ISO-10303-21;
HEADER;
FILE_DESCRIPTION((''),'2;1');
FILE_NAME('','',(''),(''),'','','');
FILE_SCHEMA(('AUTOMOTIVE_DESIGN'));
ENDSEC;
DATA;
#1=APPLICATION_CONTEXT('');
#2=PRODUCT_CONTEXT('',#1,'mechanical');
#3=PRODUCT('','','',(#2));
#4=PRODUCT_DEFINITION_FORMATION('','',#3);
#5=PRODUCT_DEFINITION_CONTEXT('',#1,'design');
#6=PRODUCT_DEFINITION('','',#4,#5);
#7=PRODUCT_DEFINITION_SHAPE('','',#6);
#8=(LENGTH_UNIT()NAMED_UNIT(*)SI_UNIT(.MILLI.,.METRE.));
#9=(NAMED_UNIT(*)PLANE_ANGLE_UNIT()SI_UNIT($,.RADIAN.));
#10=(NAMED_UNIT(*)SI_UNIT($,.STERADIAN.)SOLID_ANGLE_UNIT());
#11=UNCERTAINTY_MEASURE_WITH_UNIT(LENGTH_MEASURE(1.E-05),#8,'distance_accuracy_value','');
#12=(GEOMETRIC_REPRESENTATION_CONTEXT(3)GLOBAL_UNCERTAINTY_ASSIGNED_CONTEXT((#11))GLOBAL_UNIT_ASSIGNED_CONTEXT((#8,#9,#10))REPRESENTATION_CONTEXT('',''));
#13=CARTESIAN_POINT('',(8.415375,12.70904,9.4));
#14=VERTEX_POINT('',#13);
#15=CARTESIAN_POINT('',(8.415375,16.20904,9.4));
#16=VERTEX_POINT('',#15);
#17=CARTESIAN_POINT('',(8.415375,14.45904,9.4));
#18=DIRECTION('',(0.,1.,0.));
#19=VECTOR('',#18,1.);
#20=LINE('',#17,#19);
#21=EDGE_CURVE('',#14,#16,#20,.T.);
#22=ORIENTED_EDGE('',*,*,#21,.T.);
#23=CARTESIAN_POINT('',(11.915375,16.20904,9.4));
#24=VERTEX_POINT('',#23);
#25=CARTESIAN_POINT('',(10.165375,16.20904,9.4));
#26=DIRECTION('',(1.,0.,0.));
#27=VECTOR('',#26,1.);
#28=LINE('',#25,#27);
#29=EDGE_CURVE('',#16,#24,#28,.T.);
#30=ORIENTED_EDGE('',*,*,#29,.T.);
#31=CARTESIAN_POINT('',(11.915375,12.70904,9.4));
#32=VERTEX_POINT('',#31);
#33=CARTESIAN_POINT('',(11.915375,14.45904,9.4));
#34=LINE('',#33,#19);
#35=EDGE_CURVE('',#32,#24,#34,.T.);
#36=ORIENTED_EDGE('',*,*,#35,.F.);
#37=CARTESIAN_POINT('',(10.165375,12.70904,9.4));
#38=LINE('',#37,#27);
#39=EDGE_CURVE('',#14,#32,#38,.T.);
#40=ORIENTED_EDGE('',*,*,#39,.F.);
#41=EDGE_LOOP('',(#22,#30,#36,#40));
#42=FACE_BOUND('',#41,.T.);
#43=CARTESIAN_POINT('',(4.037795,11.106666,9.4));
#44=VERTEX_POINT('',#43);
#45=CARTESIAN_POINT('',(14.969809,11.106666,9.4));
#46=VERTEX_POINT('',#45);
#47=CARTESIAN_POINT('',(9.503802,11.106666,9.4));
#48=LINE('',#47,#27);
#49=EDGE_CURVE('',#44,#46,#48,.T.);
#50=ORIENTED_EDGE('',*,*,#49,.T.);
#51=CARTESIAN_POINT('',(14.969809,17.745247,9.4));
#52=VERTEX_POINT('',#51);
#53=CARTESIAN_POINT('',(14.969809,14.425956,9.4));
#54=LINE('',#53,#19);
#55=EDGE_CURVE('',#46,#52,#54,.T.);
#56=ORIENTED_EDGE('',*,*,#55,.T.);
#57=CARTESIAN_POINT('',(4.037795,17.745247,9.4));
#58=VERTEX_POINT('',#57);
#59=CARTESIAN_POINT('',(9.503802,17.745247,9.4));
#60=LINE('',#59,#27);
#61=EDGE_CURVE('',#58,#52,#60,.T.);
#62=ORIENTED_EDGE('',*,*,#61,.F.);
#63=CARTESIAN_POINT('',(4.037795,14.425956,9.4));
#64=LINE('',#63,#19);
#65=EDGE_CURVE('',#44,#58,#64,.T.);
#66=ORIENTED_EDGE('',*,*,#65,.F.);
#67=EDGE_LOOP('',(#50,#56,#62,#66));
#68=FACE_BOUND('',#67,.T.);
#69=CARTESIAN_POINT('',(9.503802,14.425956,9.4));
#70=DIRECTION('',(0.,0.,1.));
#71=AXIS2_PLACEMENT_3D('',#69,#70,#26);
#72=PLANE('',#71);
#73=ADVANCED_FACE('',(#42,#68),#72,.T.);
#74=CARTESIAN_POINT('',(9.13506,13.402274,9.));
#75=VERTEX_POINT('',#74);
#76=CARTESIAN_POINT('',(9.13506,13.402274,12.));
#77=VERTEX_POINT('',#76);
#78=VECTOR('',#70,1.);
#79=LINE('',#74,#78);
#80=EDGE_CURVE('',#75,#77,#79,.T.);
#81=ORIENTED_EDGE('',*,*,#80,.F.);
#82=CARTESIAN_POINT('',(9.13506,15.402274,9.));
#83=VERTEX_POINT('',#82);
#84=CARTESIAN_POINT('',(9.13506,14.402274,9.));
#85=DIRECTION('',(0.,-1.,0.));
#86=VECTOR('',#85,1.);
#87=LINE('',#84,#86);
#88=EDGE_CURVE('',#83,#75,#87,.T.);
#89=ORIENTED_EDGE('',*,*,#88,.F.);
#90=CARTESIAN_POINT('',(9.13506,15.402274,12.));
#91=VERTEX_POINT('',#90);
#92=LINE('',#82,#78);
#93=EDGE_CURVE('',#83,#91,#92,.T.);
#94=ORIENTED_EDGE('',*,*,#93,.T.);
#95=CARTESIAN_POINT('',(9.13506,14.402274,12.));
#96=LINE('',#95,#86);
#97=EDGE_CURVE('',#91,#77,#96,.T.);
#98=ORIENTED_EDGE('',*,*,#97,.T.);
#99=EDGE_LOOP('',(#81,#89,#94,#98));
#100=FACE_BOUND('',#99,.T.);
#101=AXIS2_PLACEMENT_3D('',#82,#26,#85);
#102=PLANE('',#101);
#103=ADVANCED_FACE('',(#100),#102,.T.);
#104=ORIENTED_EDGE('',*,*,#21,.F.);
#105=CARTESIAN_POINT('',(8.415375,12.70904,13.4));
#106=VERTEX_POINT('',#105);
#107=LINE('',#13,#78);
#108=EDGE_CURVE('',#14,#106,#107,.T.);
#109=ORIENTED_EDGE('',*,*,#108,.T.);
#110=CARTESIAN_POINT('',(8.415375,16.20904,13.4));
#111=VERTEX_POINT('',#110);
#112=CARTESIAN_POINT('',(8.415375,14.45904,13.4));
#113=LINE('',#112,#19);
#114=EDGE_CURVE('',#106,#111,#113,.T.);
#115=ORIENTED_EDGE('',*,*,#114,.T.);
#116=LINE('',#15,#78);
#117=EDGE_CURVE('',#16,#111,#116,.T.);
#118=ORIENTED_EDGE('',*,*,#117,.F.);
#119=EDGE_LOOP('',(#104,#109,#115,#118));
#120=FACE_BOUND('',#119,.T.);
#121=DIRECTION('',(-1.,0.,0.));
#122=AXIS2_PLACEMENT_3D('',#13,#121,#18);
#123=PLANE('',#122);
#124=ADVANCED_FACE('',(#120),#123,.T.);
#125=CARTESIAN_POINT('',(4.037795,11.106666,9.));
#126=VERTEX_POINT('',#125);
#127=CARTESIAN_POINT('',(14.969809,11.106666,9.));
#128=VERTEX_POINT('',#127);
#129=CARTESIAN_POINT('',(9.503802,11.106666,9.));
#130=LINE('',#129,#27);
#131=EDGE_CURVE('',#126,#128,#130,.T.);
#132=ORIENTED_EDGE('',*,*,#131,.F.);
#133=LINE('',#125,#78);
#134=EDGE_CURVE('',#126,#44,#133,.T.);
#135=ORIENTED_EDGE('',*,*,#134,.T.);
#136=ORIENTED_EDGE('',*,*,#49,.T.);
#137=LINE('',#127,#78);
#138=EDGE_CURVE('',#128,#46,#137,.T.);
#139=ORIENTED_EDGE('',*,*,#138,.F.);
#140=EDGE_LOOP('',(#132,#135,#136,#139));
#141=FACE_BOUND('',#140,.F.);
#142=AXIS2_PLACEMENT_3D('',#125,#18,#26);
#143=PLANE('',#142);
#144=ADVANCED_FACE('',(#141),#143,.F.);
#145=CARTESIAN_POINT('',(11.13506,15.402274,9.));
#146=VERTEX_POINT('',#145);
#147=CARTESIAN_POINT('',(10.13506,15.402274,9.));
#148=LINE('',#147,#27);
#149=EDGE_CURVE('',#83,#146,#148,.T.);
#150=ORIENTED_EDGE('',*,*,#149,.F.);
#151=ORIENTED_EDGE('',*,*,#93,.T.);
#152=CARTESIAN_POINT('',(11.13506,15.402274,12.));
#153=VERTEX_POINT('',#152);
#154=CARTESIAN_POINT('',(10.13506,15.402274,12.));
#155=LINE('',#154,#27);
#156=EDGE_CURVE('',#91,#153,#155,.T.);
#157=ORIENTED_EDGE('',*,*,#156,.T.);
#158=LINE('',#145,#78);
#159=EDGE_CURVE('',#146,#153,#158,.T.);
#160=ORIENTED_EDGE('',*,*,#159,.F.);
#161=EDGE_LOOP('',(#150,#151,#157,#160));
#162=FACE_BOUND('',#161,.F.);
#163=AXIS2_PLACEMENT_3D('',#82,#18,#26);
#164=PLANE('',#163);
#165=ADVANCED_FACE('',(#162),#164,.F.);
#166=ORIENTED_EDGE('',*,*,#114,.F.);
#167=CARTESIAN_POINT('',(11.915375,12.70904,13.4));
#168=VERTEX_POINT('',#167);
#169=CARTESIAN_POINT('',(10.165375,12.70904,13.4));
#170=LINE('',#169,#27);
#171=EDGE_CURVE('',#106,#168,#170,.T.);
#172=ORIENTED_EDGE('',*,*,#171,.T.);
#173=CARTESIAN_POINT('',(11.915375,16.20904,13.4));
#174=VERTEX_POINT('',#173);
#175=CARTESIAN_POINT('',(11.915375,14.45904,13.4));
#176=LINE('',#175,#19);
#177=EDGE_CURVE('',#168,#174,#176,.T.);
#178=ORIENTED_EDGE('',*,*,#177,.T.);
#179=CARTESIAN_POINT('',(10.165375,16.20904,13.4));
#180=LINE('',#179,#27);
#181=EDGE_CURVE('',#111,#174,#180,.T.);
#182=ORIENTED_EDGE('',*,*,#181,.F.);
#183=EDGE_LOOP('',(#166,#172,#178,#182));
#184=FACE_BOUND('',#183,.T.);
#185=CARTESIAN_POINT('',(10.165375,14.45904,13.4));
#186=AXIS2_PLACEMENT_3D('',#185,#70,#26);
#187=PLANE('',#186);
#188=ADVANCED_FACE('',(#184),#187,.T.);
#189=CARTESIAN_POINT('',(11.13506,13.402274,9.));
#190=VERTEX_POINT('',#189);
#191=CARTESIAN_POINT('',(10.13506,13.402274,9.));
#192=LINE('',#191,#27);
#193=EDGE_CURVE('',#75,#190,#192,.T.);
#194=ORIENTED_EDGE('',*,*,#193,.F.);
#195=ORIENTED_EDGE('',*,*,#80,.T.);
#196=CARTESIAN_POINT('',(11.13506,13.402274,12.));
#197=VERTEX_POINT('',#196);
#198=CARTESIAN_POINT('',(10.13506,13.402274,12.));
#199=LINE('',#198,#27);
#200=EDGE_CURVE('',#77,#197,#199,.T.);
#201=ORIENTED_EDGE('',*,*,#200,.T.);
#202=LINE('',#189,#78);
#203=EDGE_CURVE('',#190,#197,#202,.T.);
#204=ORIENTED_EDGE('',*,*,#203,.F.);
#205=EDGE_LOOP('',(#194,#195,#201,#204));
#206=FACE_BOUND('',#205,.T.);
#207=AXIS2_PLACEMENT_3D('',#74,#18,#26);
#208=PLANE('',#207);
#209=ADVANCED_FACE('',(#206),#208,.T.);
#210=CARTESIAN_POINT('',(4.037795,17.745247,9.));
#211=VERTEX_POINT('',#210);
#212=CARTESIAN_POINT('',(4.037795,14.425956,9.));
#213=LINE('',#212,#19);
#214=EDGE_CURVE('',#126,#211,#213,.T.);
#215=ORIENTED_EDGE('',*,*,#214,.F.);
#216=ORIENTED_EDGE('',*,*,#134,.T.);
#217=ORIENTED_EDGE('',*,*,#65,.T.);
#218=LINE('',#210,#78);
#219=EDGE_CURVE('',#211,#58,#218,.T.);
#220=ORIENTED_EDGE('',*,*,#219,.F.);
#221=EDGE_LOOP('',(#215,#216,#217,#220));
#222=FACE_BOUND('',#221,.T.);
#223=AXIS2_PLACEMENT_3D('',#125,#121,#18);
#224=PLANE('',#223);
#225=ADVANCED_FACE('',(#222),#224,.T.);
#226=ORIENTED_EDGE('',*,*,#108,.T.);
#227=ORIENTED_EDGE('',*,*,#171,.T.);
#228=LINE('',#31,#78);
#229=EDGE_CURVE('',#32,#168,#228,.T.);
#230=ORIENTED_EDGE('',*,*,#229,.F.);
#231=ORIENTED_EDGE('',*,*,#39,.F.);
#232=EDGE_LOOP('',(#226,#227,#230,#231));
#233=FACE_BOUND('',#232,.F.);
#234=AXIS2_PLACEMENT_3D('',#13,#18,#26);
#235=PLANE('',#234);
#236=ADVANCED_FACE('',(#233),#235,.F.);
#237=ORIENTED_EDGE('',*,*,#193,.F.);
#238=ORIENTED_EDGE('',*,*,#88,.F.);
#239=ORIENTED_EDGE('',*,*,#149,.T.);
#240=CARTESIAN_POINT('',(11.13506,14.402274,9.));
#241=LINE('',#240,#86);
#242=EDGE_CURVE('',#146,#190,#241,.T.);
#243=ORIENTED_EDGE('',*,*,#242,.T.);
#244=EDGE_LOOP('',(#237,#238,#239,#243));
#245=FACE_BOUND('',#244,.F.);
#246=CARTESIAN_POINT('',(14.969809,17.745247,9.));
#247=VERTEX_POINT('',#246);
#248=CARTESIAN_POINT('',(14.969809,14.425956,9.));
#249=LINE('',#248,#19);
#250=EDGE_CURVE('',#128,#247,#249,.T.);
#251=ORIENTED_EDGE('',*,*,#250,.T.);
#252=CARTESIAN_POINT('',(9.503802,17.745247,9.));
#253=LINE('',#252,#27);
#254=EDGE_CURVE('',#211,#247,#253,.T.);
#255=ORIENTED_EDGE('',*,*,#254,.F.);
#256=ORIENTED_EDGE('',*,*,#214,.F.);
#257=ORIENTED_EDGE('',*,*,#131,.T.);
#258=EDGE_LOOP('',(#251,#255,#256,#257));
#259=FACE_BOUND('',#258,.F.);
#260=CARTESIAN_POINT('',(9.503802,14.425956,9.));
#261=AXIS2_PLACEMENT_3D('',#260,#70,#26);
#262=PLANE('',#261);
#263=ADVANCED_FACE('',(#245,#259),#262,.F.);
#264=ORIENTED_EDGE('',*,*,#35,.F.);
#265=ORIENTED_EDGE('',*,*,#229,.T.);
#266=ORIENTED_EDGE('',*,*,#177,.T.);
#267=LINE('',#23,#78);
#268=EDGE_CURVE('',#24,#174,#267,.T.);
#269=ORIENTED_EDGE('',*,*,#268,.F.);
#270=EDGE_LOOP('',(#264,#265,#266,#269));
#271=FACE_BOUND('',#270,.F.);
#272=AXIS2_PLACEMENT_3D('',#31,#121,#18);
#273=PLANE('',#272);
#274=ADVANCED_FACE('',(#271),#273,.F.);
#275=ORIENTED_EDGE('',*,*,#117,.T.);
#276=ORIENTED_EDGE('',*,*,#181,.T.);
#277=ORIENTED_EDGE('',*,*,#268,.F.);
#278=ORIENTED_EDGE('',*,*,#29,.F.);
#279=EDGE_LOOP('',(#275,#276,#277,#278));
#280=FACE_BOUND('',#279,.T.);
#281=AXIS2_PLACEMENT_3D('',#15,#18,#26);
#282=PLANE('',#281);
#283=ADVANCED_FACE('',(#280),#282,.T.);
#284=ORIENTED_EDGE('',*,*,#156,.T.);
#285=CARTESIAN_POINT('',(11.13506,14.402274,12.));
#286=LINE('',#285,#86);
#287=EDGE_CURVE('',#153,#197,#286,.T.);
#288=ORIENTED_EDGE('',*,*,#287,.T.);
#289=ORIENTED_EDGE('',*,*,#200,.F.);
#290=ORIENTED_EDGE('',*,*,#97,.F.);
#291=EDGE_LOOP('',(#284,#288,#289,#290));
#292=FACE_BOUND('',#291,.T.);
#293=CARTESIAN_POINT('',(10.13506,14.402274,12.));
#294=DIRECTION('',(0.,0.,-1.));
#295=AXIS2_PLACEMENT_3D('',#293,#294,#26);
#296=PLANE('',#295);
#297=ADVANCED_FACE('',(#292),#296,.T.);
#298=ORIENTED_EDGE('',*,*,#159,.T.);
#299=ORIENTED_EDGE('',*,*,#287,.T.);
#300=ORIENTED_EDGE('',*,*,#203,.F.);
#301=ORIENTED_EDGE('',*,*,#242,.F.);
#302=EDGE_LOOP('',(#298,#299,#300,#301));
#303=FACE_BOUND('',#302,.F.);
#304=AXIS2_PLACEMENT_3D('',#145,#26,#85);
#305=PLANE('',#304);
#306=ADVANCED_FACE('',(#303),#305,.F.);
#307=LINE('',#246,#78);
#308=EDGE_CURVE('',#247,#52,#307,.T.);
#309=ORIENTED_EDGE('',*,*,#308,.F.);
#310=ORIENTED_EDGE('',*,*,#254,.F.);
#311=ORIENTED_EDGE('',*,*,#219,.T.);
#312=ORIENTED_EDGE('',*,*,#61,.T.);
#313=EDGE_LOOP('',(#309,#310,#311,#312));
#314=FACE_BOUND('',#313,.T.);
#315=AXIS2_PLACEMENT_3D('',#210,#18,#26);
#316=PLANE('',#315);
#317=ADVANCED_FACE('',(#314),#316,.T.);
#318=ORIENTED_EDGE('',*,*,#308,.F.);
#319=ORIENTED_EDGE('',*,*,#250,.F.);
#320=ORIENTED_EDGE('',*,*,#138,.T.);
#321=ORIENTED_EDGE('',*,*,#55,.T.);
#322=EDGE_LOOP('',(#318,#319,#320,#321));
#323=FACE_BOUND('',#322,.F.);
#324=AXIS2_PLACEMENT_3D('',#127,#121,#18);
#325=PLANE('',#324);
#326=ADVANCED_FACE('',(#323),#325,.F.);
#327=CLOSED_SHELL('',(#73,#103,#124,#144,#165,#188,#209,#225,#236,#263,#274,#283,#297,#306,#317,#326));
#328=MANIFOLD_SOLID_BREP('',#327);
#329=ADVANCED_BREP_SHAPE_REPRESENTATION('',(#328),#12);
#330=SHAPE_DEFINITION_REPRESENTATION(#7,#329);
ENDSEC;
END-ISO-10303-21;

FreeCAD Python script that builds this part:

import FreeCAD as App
import Part
import Sketcher
from FreeCAD import Vector


def add_polygon(sketch, points):
    """Adds a closed chain of lines whose ends are joined by coincident constraints."""
    first, n = sketch.GeometryCount, len(points)
    for a, b in zip(points, points[1:] + points[:1]):
        sketch.addGeometry(Part.LineSegment(App.Vector(*a, 0), App.Vector(*b, 0)), False)
    for i in range(n):
        sketch.addConstraint(Sketcher.Constraint("Coincident", first + i, 2, first + (i + 1) % n, 1))

doc = App.newDocument("Part")
body = doc.addObject("PartDesign::Body", "Body")

# Sketch on XY plane
sketch1 = doc.addObject("Sketcher::SketchObject", "Sketch")
body.addObject(sketch1)
sketch1.AttachmentSupport = (doc.XY_Plane, [""])
sketch1.MapMode = "FlatFace"
sketch1.AttachmentOffset = App.Placement(Vector(0, 0, 13), App.Rotation())
add_polygon(sketch1, [(4, 18), (4, 11), (15, 11), (15, 18)])  # lines 0-3
sketch1.addConstraint([
    Sketcher.Constraint("Vertical", 0),
    Sketcher.Constraint("Horizontal", 1),
    Sketcher.Constraint("Vertical", 2),
    Sketcher.Constraint("Horizontal", 3),
    Sketcher.Constraint("DistanceY", 0, 2, 0, 1, 6.638581),
    Sketcher.Constraint("DistanceX", 1, 1, 1, 2, 10.932014),
    Sketcher.Constraint("DistanceX", -1, 1, 1, 2, 14.969809),
    Sketcher.Constraint("DistanceY", -1, 1, 0, 2, 11.106666),
])
pad1 = doc.addObject("PartDesign::Pad", "Pad")
body.addObject(pad1)
pad1.Profile = sketch1
pad1.Length = 0.4

# Sketch on XY plane
sketch2 = doc.addObject("Sketcher::SketchObject", "Sketch001")
body.addObject(sketch2)
sketch2.AttachmentSupport = (doc.XY_Plane, [""])
sketch2.MapMode = "FlatFace"
sketch2.AttachmentOffset = App.Placement(Vector(0, 0, 13.4), App.Rotation())
add_polygon(sketch2, [(8.4, 16.2), (8.4, 12.7), (11.9, 12.7), (11.9, 16.2)])  # lines 0-3
sketch2.addConstraint([
    Sketcher.Constraint("Vertical", 0),
    Sketcher.Constraint("Horizontal", 1),
    Sketcher.Constraint("Vertical", 2),
    Sketcher.Constraint("Horizontal", 3),
    Sketcher.Constraint("Equal", 3, 0),
    Sketcher.Constraint("DistanceX", 1, 1, 1, 2, 3.5),
    Sketcher.Constraint("DistanceY", -1, 1, 0, 2, 12.70904),
    Sketcher.Constraint("DistanceX", -1, 1, 0, 2, 8.415375),
])
pad2 = doc.addObject("PartDesign::Pad", "Pad001")
body.addObject(pad2)
pad2.Profile = sketch2
pad2.Length = 4

# Sketch on XY plane
sketch3 = doc.addObject("Sketcher::SketchObject", "Sketch002")
body.addObject(sketch3)
sketch3.AttachmentSupport = (doc.XY_Plane, [""])
sketch3.MapMode = "FlatFace"
sketch3.AttachmentOffset = App.Placement(Vector(0, 0, 13), App.Rotation())
add_polygon(sketch3, [(9.1, 13.4), (9.1, 15.4), (11.1, 15.4), (11.1, 13.4)])  # lines 0-3
sketch3.addConstraint([
    Sketcher.Constraint("Vertical", 0),
    Sketcher.Constraint("Horizontal", 1),
    Sketcher.Constraint("Vertical", 2),
    Sketcher.Constraint("Horizontal", 3),
    Sketcher.Constraint("Equal", 3, 0),
    Sketcher.Constraint("DistanceX", 1, 1, 1, 2, 2.0),
    Sketcher.Constraint("DistanceX", -1, 1, 0, 2, 9.13506),
    Sketcher.Constraint("DistanceY", -1, 1, 0, 2, 15.402274),
])
pocket1 = doc.addObject("PartDesign::Pocket", "Pocket")
body.addObject(pocket1)
pocket1.Profile = sketch3
pocket1.Length = 3
pocket1.Reversed = True
body2 = doc.addObject("PartDesign::Body", "Body001")
doc.recompute()

body.Placement = App.Placement(Vector(0, 0, -4), App.Rotation(Vector(0, 0, 1), 0))
boolean = doc.addObject("PartDesign::Boolean", "Boolean")
body2.addObject(boolean)
boolean.Type = "Fuse"
boolean.addObjects([body])

doc.recompute()
